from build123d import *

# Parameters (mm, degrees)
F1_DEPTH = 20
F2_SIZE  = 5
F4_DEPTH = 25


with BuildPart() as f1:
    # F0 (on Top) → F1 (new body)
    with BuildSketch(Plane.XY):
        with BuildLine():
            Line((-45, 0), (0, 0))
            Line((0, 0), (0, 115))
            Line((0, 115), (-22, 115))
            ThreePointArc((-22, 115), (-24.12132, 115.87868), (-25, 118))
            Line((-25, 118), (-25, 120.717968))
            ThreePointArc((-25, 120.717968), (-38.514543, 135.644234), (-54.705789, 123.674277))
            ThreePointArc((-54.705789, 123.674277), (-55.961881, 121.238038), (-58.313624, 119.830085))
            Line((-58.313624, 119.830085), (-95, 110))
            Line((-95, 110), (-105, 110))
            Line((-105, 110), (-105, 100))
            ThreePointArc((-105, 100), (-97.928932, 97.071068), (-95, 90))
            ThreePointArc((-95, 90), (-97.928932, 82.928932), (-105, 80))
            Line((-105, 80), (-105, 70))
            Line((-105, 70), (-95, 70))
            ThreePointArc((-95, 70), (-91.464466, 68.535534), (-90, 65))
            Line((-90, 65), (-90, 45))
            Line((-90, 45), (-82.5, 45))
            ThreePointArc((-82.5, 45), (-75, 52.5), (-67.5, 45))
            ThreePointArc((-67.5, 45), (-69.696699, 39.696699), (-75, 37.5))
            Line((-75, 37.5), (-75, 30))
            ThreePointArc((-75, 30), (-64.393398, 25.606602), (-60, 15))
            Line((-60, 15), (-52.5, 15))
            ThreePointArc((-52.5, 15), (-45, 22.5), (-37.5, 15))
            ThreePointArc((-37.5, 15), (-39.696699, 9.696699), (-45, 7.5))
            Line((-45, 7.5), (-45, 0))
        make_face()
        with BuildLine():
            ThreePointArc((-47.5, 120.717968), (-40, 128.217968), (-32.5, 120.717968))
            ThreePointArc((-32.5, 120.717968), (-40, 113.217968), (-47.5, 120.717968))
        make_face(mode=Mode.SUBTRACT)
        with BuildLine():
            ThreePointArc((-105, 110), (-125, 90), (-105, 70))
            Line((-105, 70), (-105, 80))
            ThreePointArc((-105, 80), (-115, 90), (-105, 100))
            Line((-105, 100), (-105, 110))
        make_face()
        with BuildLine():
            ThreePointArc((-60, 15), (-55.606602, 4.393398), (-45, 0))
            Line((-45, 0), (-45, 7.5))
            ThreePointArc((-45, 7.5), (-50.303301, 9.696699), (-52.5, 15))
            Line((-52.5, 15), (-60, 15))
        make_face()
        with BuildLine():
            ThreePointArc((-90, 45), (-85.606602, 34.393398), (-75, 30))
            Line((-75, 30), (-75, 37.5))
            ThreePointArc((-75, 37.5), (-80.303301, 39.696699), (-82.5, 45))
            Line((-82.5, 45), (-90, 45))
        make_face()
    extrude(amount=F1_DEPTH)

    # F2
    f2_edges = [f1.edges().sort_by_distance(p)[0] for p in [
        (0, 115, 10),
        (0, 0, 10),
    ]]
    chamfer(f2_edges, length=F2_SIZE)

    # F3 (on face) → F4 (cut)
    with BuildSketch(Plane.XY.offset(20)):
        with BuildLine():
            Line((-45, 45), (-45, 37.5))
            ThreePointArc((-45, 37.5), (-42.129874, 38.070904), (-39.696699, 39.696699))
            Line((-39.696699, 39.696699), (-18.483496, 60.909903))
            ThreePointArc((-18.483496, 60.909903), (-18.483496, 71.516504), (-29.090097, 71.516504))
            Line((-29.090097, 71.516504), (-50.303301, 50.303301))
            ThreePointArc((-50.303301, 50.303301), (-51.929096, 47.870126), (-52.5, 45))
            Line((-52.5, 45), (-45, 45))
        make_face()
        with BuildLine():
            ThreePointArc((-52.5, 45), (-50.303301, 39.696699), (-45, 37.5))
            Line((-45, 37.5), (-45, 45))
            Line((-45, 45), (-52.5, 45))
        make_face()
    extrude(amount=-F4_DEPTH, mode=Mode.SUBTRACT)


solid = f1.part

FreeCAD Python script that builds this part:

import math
import FreeCAD as App
import Part
import Sketcher

V = App.Vector
Q = App.Units.Quantity


def edges_at(feature, points):
    """Names of the edges that pass closest to the given points."""
    edges = feature.Shape.Edges
    near = lambda p: min(range(len(edges)), key=lambda i: edges[i].distToShape(Part.Vertex(*p))[0])
    return sorted({f"Edge{near(p) + 1}" for p in points})

doc = App.newDocument("Part")
body = doc.addObject("PartDesign::Body", "Body")

sketch1 = doc.addObject("Sketcher::SketchObject", "Sketch")
body.addObject(sketch1)
sketch1.AttachmentSupport = (doc.XY_Plane, [""])
sketch1.MapMode = "FlatFace"
sketch1.addGeometry([
    Part.LineSegment(V(-45, 0, 0), V(0, 0, 0)),
    Part.LineSegment(V(0, 0, 0), V(0, 115, 0)),
    Part.LineSegment(V(0, 115, 0), V(-22, 115, 0)),
    Part.ArcOfCircle(Part.Circle(V(-22, 118, 0), V(0, 0, 1), 3), math.radians(-180), math.radians(-90)),
    Part.LineSegment(V(-25, 118, 0), V(-25, 120.7, 0)),
    Part.ArcOfCircle(Part.Circle(V(-40, 120.7, 0), V(0, 0, 1), 15), math.radians(0), math.radians(169)),
    Part.ArcOfCircle(Part.Circle(V(-59.6, 124.7, 0), V(0, 0, 1), 5), math.radians(-75), math.radians(-11)),
    Part.LineSegment(V(-58.3, 119.8, 0), V(-95, 110, 0)),
    Part.LineSegment(V(-95, 110, 0), V(-105, 110, 0)),
    Part.ArcOfCircle(Part.Circle(V(-105, 90, 0), V(0, 0, 1), 20), math.radians(90), math.radians(270)),
    Part.LineSegment(V(-105, 70, 0), V(-95, 70, 0)),
    Part.ArcOfCircle(Part.Circle(V(-95, 65, 0), V(0, 0, 1), 5), math.radians(0), math.radians(90)),
    Part.LineSegment(V(-90, 65, 0), V(-90, 45, 0)),
    Part.ArcOfCircle(Part.Circle(V(-75, 45, 0), V(0, 0, 1), 15), math.radians(180), math.radians(270)),
    Part.ArcOfCircle(Part.Circle(V(-75, 15, 0), V(0, 0, 1), 15), math.radians(0), math.radians(90)),
    Part.ArcOfCircle(Part.Circle(V(-45, 15, 0), V(0, 0, 1), 15), math.radians(180), math.radians(270)),
    Part.ArcOfCircle(Part.Circle(V(-75, 45, 0), V(0, 0, 1), 7.5), math.radians(0), math.radians(180)),
    Part.ArcOfCircle(Part.Circle(V(-75, 45, 0), V(0, 0, 1), 7.5), math.radians(-90), math.radians(0)),
    Part.ArcOfCircle(Part.Circle(V(-75, 45, 0), V(0, 0, 1), 7.5), math.radians(180), math.radians(270)),
    Part.ArcOfCircle(Part.Circle(V(-45, 15, 0), V(0, 0, 1), 7.5), math.radians(0), math.radians(180)),
    Part.ArcOfCircle(Part.Circle(V(-45, 15, 0), V(0, 0, 1), 7.5), math.radians(-90), math.radians(0)),
    Part.ArcOfCircle(Part.Circle(V(-45, 15, 0), V(0, 0, 1), 7.5), math.radians(180), math.radians(270)),
    Part.ArcOfCircle(Part.Circle(V(-105, 90, 0), V(0, 0, 1), 10), math.radians(0), math.radians(90)),
    Part.ArcOfCircle(Part.Circle(V(-105, 90, 0), V(0, 0, 1), 10), math.radians(-90), math.radians(0)),
    Part.ArcOfCircle(Part.Circle(V(-105, 90, 0), V(0, 0, 1), 10), math.radians(90), math.radians(270)),
    Part.Circle(V(-40, 120.7, 0), V(0, 0, 1), 7.5),
], False)
sketch1.addConstraint([
    Sketcher.Constraint("Coincident", 0, 2, 1, 1),
    Sketcher.Constraint("Coincident", 1, 2, 2, 1),
    Sketcher.Constraint("Tangent", 2, 2, 3, 2),
    Sketcher.Constraint("Tangent", 3, 1, 4, 1),
    Sketcher.Constraint("Tangent", 4, 2, 5, 1),
    Sketcher.Constraint("Tangent", 5, 2, 6, 2),
    Sketcher.Constraint("Tangent", 6, 1, 7, 1),
    Sketcher.Constraint("Coincident", 7, 2, 8, 1),
    Sketcher.Constraint("Tangent", 8, 2, 9, 1),
    Sketcher.Constraint("Tangent", 9, 2, 10, 1),
    Sketcher.Constraint("Tangent", 10, 2, 11, 2),
    Sketcher.Constraint("Tangent", 11, 1, 12, 1),
    Sketcher.Constraint("Tangent", 12, 2, 13, 1),
    Sketcher.Constraint("Tangent", 13, 2, 14, 2),
    Sketcher.Constraint("Tangent", 14, 1, 15, 1),
    Sketcher.Constraint("Tangent", 15, 2, 0, 1),
    Sketcher.Constraint("Tangent", 16, 1, 17, 2),
    Sketcher.Constraint("Tangent", 17, 1, 18, 2),
    Sketcher.Constraint("Tangent", 18, 1, 16, 2),
    Sketcher.Constraint("Tangent", 19, 1, 20, 2),
    Sketcher.Constraint("Tangent", 20, 1, 21, 2),
    Sketcher.Constraint("Tangent", 21, 1, 19, 2),
    Sketcher.Constraint("Tangent", 22, 1, 23, 2),
    Sketcher.Constraint("Tangent", 23, 1, 24, 2),
    Sketcher.Constraint("Tangent", 24, 1, 22, 2),
    Sketcher.Constraint("Horizontal", 0),
    Sketcher.Constraint("Vertical", 1),
    Sketcher.Constraint("Horizontal", 2),
    Sketcher.Constraint("Vertical", 4),
    Sketcher.Constraint("Horizontal", 8),
    Sketcher.Constraint("Horizontal", 10),
    Sketcher.Constraint("Vertical", 12),
    Sketcher.Constraint("Coincident", 0, 2, -1, 1),
    Sketcher.Constraint("Coincident", 16, 3, 13, 3),
    Sketcher.Constraint("Coincident", 19, 3, 15, 3),
    Sketcher.Constraint("Coincident", 22, 3, 9, 3),
    Sketcher.Constraint("Coincident", 25, 3, 5, 3),
    Sketcher.Constraint("Equal", 6, 11),
    Sketcher.Constraint("Equal", 5, 13),
    Sketcher.Constraint("Equal", 13, 14),
    Sketcher.Constraint("Equal", 14, 15),
    Sketcher.Constraint("Equal", 18, 19),
    Sketcher.Constraint("Equal", 21, 25),
    Sketcher.Constraint("Horizontal", 14, 3, 15, 3),
    Sketcher.Constraint("Horizontal", 12, 2, 16, 1),
    Sketcher.Constraint("Horizontal", 16, 1, 18, 1),
    Sketcher.Constraint("Horizontal", 14, 1, 19, 1),
    Sketcher.Constraint("Horizontal", 19, 1, 21, 1),
    Sketcher.Constraint("Horizontal", 24, 3, 22, 1),
    Sketcher.Constraint("Vertical", 13, 3, 14, 3),
    Sketcher.Constraint("Vertical", 11, 3, 7, 2),
    Sketcher.Constraint("Vertical", 13, 2, 17, 1),
    Sketcher.Constraint("Vertical", 15, 2, 20, 1),
    Sketcher.Constraint("Vertical", 10, 2, 22, 1),
    Sketcher.Constraint("Vertical", 9, 2, 23, 1),
    Sketcher.Constraint("Vertical", 23, 1, 24, 1),
    Sketcher.Constraint("Diameter", 25, 15.0),
    Sketcher.Constraint("Radius", 3, 3.000001),
    Sketcher.Constraint("Radius", 5, 15.0),
    Sketcher.Constraint("Radius", 6, 5.0),
    Sketcher.Constraint("Radius", 9, 20.0),
    Sketcher.Constraint("Radius", 22, 9.999999),
    Sketcher.Constraint("DistanceX", 0, 1, 0, 2, 45.0),
    Sketcher.Constraint("DistanceX", 2, 2, 2, 1, 22.0),
    Sketcher.Constraint("DistanceY", 1, 1, 1, 2, 115.0),
    Sketcher.Constraint("DistanceY", 12, 2, 12, 1, 20.0),
    Sketcher.Constraint("Angle", 7, Q("-165 deg")),
    Sketcher.Constraint("Distance", 7, 37.980531),
])
pad1 = doc.addObject("PartDesign::Pad", "Pad")
body.addObject(pad1)
pad1.Profile = sketch1
pad1.Length = 20
doc.recompute()

chamfer = doc.addObject("PartDesign::Chamfer", "Chamfer")
body.addObject(chamfer)
chamfer.Base = (pad1, edges_at(pad1, [(0, 115, 10), (0, 0, 10)]))
chamfer.Size = 5

sketch2 = doc.addObject("Sketcher::SketchObject", "Sketch001")
body.addObject(sketch2)
sketch2.AttachmentSupport = (doc.XY_Plane, [""])
sketch2.MapMode = "FlatFace"
sketch2.AttachmentOffset = App.Placement(V(0, 0, 20), App.Rotation())
sketch2.addGeometry([
    Part.ArcOfCircle(Part.Circle(V(-45, 45, 0), V(0, 0, 1), 8), math.radians(-90), math.radians(-45)),
    Part.LineSegment(V(-40, 40, 0), V(-18, 61, 0)),
    Part.ArcOfCircle(Part.Circle(V(-24, 66, 0), V(0, 0, 1), 7), math.radians(-45), math.radians(135)),
    Part.LineSegment(V(-29, 72, 0), V(-50, 50, 0)),
    Part.ArcOfCircle(Part.Circle(V(-45, 45, 0), V(0, 0, 1), 8), math.radians(135), math.radians(180)),
    Part.ArcOfCircle(Part.Circle(V(-45, 45, 0), V(0, 0, 1), 7), math.radians(180), math.radians(270)),
], False)
sketch2.addConstraint([
    Sketcher.Constraint("Tangent", 0, 2, 1, 1),
    Sketcher.Constraint("Tangent", 1, 2, 2, 1),
    Sketcher.Constraint("Tangent", 2, 2, 3, 1),
    Sketcher.Constraint("Tangent", 3, 2, 4, 1),
    Sketcher.Constraint("Tangent", 4, 2, 5, 1),
    Sketcher.Constraint("Tangent", 5, 2, 0, 1),
    Sketcher.Constraint("Equal", 0, 4),
    Sketcher.Constraint("Equal", 2, 5),
    Sketcher.Constraint("Parallel", 1, 3),
    Sketcher.Constraint("Horizontal", 5, 3, 4, 2),
    Sketcher.Constraint("Radius", 2, 7.499999),
    Sketcher.Constraint("Angle", 1, Q("45.000001 deg")),
    Sketcher.Constraint("Distance", 1, 30.0),
    Sketcher.Constraint("DistanceX", 5, 3, -1, 1, 45.0),
    Sketcher.Constraint("DistanceY", -1, 1, 5, 3, 45.0),
    Sketcher.Constraint("DistanceX", 5, 2, -1, 1, 45.0),
])
pocket1 = doc.addObject("PartDesign::Pocket", "Pocket")
body.addObject(pocket1)
pocket1.Profile = sketch2
pocket1.Length = 25

doc.recompute()
